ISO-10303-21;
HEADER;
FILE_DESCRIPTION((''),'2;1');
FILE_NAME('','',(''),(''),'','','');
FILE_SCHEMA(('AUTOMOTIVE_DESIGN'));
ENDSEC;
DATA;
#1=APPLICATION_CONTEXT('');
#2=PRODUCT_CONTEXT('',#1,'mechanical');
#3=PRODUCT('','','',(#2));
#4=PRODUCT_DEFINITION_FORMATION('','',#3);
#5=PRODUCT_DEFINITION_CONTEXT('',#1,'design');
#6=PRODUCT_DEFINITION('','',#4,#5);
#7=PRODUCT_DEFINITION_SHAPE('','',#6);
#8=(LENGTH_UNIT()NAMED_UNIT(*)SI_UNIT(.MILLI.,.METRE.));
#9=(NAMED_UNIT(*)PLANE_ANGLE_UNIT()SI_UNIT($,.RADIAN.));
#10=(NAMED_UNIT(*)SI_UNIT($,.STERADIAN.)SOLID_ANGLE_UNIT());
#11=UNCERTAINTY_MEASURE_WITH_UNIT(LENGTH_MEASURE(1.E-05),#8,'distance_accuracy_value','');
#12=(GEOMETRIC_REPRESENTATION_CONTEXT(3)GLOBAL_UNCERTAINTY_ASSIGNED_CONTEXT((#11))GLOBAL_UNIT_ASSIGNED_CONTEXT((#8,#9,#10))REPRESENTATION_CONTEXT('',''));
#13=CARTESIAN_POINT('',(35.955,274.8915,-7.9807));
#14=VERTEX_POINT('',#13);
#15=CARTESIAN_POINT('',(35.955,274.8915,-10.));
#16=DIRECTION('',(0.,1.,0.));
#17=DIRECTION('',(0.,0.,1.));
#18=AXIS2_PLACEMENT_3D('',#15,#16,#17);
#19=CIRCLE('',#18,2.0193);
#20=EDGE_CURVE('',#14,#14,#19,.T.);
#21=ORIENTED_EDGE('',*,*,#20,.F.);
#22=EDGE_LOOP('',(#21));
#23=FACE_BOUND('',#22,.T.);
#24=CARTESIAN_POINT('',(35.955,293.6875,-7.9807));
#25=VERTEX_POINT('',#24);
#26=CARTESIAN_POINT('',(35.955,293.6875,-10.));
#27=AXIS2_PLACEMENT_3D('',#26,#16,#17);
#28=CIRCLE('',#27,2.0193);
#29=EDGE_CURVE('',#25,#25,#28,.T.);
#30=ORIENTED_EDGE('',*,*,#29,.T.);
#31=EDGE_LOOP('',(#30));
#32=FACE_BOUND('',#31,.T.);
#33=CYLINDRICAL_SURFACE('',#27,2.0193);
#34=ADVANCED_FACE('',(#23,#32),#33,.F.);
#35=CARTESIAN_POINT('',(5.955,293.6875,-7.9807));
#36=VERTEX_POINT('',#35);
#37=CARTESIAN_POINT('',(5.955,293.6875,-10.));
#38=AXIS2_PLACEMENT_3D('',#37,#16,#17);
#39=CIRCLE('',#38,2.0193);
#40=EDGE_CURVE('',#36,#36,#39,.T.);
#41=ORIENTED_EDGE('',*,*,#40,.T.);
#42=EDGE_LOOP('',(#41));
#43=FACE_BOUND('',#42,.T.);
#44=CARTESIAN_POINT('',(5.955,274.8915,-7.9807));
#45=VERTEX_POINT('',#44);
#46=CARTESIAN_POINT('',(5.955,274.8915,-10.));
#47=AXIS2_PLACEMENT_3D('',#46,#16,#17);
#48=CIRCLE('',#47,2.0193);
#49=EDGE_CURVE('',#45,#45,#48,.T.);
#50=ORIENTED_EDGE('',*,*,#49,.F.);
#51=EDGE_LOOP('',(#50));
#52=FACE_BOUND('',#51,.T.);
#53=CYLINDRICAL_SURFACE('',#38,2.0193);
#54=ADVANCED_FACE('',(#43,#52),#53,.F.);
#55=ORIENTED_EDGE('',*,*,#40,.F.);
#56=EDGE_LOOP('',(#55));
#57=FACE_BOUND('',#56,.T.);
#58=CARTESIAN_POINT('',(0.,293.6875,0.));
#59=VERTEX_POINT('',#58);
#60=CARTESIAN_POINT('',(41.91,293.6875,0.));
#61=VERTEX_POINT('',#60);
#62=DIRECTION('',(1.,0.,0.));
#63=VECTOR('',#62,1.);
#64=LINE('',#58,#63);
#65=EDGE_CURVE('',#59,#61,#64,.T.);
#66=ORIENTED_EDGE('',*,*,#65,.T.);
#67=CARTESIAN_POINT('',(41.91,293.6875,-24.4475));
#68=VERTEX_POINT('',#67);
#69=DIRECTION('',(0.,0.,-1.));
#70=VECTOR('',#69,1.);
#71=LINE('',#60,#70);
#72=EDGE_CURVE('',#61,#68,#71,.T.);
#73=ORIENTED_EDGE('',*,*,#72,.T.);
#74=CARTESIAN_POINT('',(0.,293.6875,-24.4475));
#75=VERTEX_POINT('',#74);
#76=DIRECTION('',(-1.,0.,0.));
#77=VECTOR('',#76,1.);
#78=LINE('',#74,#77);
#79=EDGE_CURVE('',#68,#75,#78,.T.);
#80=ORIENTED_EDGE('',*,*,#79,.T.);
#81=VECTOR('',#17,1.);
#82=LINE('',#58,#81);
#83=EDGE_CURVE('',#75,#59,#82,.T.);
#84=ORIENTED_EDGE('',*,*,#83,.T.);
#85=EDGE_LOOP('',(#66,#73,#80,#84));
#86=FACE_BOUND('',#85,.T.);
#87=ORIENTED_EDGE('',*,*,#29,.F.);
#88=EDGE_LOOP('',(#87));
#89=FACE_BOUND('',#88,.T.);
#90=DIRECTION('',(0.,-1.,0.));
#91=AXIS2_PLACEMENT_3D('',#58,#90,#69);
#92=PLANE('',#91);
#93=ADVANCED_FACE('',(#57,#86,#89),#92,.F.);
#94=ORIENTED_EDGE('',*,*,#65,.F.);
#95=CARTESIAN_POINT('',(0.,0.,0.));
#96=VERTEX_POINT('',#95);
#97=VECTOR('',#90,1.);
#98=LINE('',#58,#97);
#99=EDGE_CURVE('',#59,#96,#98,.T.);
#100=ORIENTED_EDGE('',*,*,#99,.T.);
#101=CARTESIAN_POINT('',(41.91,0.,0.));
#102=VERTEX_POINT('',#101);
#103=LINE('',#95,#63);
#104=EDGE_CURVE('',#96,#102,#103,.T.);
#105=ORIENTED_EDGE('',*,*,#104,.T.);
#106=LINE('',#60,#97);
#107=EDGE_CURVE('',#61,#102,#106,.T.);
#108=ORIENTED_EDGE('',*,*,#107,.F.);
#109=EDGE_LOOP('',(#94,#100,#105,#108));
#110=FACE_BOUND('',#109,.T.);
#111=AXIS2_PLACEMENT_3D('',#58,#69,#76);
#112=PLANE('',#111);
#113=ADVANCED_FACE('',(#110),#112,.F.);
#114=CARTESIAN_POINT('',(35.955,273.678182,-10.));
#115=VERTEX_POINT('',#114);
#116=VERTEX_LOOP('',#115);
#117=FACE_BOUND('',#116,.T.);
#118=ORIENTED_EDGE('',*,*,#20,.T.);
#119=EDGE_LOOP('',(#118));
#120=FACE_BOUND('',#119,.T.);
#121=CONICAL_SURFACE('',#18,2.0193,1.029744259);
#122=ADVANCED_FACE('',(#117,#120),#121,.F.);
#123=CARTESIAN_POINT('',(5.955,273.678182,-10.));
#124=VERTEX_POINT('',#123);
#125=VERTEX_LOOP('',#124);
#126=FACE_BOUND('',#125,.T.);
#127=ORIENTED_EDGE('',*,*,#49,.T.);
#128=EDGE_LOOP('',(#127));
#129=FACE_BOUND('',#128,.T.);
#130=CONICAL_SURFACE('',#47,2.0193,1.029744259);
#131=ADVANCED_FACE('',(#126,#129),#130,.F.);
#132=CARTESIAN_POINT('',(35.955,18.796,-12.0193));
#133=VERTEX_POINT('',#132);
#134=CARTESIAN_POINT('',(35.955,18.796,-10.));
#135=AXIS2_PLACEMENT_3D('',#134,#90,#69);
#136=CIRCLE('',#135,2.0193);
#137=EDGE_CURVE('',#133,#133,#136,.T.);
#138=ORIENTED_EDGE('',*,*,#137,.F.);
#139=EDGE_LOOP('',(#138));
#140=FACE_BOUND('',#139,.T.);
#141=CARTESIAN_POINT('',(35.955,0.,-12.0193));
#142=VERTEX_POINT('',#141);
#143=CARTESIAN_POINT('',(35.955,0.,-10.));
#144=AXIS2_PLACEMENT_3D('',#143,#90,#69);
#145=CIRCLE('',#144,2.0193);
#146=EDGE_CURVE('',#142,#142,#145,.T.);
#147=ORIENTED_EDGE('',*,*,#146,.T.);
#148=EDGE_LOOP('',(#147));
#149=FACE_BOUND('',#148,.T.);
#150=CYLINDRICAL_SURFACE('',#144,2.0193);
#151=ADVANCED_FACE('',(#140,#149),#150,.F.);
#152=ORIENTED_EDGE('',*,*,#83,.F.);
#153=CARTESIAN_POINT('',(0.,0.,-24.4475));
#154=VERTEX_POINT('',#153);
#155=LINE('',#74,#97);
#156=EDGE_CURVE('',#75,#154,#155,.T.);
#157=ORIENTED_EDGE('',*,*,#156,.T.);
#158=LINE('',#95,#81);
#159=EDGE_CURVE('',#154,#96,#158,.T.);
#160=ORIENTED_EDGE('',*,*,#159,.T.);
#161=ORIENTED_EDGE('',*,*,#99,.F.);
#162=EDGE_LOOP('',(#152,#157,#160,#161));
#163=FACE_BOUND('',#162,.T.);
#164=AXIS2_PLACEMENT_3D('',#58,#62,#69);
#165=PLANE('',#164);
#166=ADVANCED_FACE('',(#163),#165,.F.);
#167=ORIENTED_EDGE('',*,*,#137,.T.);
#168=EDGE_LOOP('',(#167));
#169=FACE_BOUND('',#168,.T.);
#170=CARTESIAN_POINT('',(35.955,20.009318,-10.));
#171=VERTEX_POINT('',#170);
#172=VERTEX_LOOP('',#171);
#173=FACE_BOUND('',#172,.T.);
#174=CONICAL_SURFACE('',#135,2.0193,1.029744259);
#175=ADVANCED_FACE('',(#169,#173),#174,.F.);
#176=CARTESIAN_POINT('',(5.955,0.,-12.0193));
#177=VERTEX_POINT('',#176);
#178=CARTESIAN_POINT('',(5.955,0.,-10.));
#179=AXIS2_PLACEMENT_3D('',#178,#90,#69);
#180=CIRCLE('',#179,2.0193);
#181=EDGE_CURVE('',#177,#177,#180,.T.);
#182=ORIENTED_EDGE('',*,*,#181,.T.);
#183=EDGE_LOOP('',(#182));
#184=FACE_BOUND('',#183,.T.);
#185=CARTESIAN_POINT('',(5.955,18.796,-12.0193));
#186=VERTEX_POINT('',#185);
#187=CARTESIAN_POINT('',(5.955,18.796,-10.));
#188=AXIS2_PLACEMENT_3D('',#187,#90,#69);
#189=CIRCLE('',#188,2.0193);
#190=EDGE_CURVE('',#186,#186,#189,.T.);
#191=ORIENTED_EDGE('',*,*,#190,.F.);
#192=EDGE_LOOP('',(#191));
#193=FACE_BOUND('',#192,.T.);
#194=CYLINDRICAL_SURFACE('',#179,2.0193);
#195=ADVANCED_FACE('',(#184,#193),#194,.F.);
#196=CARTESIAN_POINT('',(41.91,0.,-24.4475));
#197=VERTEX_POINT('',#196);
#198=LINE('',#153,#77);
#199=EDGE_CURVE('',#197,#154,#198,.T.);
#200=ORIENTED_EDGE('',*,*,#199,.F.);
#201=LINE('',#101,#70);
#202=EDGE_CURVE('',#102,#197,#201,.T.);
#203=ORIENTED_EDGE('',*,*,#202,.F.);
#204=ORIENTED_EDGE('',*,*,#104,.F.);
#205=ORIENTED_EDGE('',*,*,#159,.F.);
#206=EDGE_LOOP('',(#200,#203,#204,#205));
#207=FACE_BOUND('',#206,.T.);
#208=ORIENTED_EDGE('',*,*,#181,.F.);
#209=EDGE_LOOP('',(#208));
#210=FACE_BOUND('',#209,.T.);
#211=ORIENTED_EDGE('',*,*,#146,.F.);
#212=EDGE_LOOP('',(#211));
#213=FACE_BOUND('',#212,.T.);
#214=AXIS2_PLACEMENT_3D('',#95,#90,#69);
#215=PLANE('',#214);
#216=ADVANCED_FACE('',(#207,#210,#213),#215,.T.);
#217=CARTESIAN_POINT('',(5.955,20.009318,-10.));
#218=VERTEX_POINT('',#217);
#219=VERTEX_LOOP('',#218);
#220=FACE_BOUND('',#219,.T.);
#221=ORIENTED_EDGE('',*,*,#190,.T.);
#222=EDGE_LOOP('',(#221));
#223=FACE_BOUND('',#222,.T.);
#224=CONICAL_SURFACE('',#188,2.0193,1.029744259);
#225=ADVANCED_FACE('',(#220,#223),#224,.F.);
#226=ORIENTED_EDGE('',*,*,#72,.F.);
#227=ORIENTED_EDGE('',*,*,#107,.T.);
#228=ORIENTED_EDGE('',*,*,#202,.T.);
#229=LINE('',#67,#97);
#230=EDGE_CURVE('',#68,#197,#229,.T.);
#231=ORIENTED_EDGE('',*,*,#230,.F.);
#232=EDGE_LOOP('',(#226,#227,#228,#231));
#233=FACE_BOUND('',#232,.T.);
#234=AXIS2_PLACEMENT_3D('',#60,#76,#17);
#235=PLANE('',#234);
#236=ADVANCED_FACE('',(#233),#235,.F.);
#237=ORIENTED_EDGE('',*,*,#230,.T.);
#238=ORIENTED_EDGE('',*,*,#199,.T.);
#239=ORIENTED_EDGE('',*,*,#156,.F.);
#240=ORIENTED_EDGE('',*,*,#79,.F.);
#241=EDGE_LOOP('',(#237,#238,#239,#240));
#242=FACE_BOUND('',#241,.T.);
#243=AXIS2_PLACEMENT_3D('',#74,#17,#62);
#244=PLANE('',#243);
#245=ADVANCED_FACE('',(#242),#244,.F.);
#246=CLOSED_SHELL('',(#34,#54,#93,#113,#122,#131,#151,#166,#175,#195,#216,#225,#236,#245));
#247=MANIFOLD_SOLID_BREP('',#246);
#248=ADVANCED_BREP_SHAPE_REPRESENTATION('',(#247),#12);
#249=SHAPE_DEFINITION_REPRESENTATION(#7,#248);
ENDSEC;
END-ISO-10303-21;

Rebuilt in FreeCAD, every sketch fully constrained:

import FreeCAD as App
import Part
import Sketcher
from FreeCAD import Vector
Q = App.Units.Quantity

doc = App.newDocument("Part")
params = doc.addObject("Spreadsheet::Sheet", "Params")
for row, (alias, value) in enumerate([
    ("sketch1_width", "1.65 in"),
    ("pad1_length", "11.5625 in"),
    ("sketch2_diameter", "0.159 in"),
    ("hole_diameter", "0.159 in"),
    ("hole_depth", "0.74 in"),
    ("sketch3_diameter", "0.159 in"),
    ("hole2_diameter", "0.159 in"),
    ("hole2_depth", "0.74 in"),
], start=1):
    params.set(f"A{row}", alias)
    params.set(f"B{row}", "=" + value)
    params.setAlias(f"B{row}", alias)

body = doc.addObject("PartDesign::Body", "Body")

sketch1 = body.newObject("Sketcher::SketchObject", "Sketch")
sketch1.AttachmentSupport = (doc.getObject("XZ_Plane"), [""])
sketch1.MapMode = "FlatFace"
sketch1.addGeometry(Part.LineSegment(Vector(0, -24.4475, 0), Vector(0, 0, 0)), False)
sketch1.addGeometry(Part.LineSegment(Vector(0, 0, 0), Vector(41.91, 0, 0)), False)
sketch1.addGeometry(Part.LineSegment(Vector(41.91, 0, 0), Vector(41.91, -24.4475, 0)), False)
sketch1.addGeometry(Part.LineSegment(Vector(41.91, -24.4475, 0), Vector(0, -24.4475, 0)), False)
sketch1.addConstraint(Sketcher.Constraint("Coincident", 0, 2, 1, 1))
sketch1.addConstraint(Sketcher.Constraint("Coincident", 1, 2, 2, 1))
sketch1.addConstraint(Sketcher.Constraint("Coincident", 2, 2, 3, 1))
sketch1.addConstraint(Sketcher.Constraint("Coincident", 3, 2, 0, 1))
sketch1.addConstraint(Sketcher.Constraint("Vertical", 0))
sketch1.addConstraint(Sketcher.Constraint("Horizontal", 1))
sketch1.addConstraint(Sketcher.Constraint("Vertical", 2))
sketch1.addConstraint(Sketcher.Constraint("Horizontal", 3))
sketch1.addConstraint(Sketcher.Constraint("Coincident", 0, 2, -1, 1))
sketch1.addConstraint(Sketcher.Constraint("DistanceX", 1, 1, 1, 2, Q("1.65 in")))
sketch1.addConstraint(Sketcher.Constraint("DistanceY", 0, 1, 0, 2, Q("0.9625 in")))
sketch1.setExpression("Constraints[9]", "Params.sketch1_width")
pad1 = body.newObject("PartDesign::Pad", "Pad")
pad1.Profile = sketch1
pad1.setExpression("Length", "Params.pad1_length")
pad1.Reversed = True

sketch2 = body.newObject("Sketcher::SketchObject", "Sketch001")
sketch2.AttachmentSupport = (doc.getObject("XZ_Plane"), [""])
sketch2.MapMode = "FlatFace"
sketch2.AttachmentOffset = App.Placement(Vector(0, 0, -11.5625 * 25.4), App.Rotation())
sketch2.addGeometry(Part.Circle(Vector(5.955, -10, 0), Vector(0, 0, 1), 2.0193), False)
sketch2.addGeometry(Part.Circle(Vector(35.955, -10, 0), Vector(0, 0, 1), 2.0193), False)
sketch2.addConstraint(Sketcher.Constraint("Equal", 0, 1))
sketch2.addConstraint(Sketcher.Constraint("Horizontal", 0, 3, 1, 3))
sketch2.addConstraint(Sketcher.Constraint("Diameter", 0, Q("0.159 in")))
sketch2.addConstraint(Sketcher.Constraint("DistanceX", -1, 1, 0, 3, Q("5.955 mm")))
sketch2.addConstraint(Sketcher.Constraint("DistanceY", 0, 3, -1, 1, Q("10 mm")))
sketch2.addConstraint(Sketcher.Constraint("DistanceX", -1, 1, 1, 3, Q("35.955 mm")))
sketch2.setExpression("Constraints[2]", "Params.sketch2_diameter")
doc.recompute()
hole = body.newObject("PartDesign::Hole", "Hole")
hole.Profile = sketch2
hole.ThreadType = "None"
hole.setExpression("Diameter", "Params.hole_diameter")
hole.DepthType = "Dimension"
hole.setExpression("Depth", "Params.hole_depth")
hole.DrillPoint = "Angled"
hole.DrillPointAngle = 118
hole.Reversed = True

sketch3 = body.newObject("Sketcher::SketchObject", "Sketch002")
sketch3.AttachmentSupport = (doc.getObject("XZ_Plane"), [""])
sketch3.MapMode = "FlatFace"
sketch3.addGeometry(Part.Circle(Vector(35.955, -10, 0), Vector(0, 0, 1), 2.0193), False)
sketch3.addGeometry(Part.Circle(Vector(5.955, -10, 0), Vector(0, 0, 1), 2.0193), False)
sketch3.addConstraint(Sketcher.Constraint("Equal", 0, 1))
sketch3.addConstraint(Sketcher.Constraint("Horizontal", 0, 3, 1, 3))
sketch3.addConstraint(Sketcher.Constraint("Diameter", 0, Q("0.159 in")))
sketch3.addConstraint(Sketcher.Constraint("DistanceX", -1, 1, 0, 3, Q("35.955 mm")))
sketch3.addConstraint(Sketcher.Constraint("DistanceY", 0, 3, -1, 1, Q("10 mm")))
sketch3.addConstraint(Sketcher.Constraint("DistanceX", -1, 1, 1, 3, Q("5.955 mm")))
sketch3.setExpression("Constraints[2]", "Params.sketch3_diameter")
doc.recompute()
hole2 = body.newObject("PartDesign::Hole", "Hole001")
hole2.Profile = sketch3
hole2.ThreadType = "None"
hole2.setExpression("Diameter", "Params.hole2_diameter")
hole2.DepthType = "Dimension"
hole2.setExpression("Depth", "Params.hole2_depth")
hole2.DrillPoint = "Angled"
hole2.DrillPointAngle = 118

doc.recompute()
